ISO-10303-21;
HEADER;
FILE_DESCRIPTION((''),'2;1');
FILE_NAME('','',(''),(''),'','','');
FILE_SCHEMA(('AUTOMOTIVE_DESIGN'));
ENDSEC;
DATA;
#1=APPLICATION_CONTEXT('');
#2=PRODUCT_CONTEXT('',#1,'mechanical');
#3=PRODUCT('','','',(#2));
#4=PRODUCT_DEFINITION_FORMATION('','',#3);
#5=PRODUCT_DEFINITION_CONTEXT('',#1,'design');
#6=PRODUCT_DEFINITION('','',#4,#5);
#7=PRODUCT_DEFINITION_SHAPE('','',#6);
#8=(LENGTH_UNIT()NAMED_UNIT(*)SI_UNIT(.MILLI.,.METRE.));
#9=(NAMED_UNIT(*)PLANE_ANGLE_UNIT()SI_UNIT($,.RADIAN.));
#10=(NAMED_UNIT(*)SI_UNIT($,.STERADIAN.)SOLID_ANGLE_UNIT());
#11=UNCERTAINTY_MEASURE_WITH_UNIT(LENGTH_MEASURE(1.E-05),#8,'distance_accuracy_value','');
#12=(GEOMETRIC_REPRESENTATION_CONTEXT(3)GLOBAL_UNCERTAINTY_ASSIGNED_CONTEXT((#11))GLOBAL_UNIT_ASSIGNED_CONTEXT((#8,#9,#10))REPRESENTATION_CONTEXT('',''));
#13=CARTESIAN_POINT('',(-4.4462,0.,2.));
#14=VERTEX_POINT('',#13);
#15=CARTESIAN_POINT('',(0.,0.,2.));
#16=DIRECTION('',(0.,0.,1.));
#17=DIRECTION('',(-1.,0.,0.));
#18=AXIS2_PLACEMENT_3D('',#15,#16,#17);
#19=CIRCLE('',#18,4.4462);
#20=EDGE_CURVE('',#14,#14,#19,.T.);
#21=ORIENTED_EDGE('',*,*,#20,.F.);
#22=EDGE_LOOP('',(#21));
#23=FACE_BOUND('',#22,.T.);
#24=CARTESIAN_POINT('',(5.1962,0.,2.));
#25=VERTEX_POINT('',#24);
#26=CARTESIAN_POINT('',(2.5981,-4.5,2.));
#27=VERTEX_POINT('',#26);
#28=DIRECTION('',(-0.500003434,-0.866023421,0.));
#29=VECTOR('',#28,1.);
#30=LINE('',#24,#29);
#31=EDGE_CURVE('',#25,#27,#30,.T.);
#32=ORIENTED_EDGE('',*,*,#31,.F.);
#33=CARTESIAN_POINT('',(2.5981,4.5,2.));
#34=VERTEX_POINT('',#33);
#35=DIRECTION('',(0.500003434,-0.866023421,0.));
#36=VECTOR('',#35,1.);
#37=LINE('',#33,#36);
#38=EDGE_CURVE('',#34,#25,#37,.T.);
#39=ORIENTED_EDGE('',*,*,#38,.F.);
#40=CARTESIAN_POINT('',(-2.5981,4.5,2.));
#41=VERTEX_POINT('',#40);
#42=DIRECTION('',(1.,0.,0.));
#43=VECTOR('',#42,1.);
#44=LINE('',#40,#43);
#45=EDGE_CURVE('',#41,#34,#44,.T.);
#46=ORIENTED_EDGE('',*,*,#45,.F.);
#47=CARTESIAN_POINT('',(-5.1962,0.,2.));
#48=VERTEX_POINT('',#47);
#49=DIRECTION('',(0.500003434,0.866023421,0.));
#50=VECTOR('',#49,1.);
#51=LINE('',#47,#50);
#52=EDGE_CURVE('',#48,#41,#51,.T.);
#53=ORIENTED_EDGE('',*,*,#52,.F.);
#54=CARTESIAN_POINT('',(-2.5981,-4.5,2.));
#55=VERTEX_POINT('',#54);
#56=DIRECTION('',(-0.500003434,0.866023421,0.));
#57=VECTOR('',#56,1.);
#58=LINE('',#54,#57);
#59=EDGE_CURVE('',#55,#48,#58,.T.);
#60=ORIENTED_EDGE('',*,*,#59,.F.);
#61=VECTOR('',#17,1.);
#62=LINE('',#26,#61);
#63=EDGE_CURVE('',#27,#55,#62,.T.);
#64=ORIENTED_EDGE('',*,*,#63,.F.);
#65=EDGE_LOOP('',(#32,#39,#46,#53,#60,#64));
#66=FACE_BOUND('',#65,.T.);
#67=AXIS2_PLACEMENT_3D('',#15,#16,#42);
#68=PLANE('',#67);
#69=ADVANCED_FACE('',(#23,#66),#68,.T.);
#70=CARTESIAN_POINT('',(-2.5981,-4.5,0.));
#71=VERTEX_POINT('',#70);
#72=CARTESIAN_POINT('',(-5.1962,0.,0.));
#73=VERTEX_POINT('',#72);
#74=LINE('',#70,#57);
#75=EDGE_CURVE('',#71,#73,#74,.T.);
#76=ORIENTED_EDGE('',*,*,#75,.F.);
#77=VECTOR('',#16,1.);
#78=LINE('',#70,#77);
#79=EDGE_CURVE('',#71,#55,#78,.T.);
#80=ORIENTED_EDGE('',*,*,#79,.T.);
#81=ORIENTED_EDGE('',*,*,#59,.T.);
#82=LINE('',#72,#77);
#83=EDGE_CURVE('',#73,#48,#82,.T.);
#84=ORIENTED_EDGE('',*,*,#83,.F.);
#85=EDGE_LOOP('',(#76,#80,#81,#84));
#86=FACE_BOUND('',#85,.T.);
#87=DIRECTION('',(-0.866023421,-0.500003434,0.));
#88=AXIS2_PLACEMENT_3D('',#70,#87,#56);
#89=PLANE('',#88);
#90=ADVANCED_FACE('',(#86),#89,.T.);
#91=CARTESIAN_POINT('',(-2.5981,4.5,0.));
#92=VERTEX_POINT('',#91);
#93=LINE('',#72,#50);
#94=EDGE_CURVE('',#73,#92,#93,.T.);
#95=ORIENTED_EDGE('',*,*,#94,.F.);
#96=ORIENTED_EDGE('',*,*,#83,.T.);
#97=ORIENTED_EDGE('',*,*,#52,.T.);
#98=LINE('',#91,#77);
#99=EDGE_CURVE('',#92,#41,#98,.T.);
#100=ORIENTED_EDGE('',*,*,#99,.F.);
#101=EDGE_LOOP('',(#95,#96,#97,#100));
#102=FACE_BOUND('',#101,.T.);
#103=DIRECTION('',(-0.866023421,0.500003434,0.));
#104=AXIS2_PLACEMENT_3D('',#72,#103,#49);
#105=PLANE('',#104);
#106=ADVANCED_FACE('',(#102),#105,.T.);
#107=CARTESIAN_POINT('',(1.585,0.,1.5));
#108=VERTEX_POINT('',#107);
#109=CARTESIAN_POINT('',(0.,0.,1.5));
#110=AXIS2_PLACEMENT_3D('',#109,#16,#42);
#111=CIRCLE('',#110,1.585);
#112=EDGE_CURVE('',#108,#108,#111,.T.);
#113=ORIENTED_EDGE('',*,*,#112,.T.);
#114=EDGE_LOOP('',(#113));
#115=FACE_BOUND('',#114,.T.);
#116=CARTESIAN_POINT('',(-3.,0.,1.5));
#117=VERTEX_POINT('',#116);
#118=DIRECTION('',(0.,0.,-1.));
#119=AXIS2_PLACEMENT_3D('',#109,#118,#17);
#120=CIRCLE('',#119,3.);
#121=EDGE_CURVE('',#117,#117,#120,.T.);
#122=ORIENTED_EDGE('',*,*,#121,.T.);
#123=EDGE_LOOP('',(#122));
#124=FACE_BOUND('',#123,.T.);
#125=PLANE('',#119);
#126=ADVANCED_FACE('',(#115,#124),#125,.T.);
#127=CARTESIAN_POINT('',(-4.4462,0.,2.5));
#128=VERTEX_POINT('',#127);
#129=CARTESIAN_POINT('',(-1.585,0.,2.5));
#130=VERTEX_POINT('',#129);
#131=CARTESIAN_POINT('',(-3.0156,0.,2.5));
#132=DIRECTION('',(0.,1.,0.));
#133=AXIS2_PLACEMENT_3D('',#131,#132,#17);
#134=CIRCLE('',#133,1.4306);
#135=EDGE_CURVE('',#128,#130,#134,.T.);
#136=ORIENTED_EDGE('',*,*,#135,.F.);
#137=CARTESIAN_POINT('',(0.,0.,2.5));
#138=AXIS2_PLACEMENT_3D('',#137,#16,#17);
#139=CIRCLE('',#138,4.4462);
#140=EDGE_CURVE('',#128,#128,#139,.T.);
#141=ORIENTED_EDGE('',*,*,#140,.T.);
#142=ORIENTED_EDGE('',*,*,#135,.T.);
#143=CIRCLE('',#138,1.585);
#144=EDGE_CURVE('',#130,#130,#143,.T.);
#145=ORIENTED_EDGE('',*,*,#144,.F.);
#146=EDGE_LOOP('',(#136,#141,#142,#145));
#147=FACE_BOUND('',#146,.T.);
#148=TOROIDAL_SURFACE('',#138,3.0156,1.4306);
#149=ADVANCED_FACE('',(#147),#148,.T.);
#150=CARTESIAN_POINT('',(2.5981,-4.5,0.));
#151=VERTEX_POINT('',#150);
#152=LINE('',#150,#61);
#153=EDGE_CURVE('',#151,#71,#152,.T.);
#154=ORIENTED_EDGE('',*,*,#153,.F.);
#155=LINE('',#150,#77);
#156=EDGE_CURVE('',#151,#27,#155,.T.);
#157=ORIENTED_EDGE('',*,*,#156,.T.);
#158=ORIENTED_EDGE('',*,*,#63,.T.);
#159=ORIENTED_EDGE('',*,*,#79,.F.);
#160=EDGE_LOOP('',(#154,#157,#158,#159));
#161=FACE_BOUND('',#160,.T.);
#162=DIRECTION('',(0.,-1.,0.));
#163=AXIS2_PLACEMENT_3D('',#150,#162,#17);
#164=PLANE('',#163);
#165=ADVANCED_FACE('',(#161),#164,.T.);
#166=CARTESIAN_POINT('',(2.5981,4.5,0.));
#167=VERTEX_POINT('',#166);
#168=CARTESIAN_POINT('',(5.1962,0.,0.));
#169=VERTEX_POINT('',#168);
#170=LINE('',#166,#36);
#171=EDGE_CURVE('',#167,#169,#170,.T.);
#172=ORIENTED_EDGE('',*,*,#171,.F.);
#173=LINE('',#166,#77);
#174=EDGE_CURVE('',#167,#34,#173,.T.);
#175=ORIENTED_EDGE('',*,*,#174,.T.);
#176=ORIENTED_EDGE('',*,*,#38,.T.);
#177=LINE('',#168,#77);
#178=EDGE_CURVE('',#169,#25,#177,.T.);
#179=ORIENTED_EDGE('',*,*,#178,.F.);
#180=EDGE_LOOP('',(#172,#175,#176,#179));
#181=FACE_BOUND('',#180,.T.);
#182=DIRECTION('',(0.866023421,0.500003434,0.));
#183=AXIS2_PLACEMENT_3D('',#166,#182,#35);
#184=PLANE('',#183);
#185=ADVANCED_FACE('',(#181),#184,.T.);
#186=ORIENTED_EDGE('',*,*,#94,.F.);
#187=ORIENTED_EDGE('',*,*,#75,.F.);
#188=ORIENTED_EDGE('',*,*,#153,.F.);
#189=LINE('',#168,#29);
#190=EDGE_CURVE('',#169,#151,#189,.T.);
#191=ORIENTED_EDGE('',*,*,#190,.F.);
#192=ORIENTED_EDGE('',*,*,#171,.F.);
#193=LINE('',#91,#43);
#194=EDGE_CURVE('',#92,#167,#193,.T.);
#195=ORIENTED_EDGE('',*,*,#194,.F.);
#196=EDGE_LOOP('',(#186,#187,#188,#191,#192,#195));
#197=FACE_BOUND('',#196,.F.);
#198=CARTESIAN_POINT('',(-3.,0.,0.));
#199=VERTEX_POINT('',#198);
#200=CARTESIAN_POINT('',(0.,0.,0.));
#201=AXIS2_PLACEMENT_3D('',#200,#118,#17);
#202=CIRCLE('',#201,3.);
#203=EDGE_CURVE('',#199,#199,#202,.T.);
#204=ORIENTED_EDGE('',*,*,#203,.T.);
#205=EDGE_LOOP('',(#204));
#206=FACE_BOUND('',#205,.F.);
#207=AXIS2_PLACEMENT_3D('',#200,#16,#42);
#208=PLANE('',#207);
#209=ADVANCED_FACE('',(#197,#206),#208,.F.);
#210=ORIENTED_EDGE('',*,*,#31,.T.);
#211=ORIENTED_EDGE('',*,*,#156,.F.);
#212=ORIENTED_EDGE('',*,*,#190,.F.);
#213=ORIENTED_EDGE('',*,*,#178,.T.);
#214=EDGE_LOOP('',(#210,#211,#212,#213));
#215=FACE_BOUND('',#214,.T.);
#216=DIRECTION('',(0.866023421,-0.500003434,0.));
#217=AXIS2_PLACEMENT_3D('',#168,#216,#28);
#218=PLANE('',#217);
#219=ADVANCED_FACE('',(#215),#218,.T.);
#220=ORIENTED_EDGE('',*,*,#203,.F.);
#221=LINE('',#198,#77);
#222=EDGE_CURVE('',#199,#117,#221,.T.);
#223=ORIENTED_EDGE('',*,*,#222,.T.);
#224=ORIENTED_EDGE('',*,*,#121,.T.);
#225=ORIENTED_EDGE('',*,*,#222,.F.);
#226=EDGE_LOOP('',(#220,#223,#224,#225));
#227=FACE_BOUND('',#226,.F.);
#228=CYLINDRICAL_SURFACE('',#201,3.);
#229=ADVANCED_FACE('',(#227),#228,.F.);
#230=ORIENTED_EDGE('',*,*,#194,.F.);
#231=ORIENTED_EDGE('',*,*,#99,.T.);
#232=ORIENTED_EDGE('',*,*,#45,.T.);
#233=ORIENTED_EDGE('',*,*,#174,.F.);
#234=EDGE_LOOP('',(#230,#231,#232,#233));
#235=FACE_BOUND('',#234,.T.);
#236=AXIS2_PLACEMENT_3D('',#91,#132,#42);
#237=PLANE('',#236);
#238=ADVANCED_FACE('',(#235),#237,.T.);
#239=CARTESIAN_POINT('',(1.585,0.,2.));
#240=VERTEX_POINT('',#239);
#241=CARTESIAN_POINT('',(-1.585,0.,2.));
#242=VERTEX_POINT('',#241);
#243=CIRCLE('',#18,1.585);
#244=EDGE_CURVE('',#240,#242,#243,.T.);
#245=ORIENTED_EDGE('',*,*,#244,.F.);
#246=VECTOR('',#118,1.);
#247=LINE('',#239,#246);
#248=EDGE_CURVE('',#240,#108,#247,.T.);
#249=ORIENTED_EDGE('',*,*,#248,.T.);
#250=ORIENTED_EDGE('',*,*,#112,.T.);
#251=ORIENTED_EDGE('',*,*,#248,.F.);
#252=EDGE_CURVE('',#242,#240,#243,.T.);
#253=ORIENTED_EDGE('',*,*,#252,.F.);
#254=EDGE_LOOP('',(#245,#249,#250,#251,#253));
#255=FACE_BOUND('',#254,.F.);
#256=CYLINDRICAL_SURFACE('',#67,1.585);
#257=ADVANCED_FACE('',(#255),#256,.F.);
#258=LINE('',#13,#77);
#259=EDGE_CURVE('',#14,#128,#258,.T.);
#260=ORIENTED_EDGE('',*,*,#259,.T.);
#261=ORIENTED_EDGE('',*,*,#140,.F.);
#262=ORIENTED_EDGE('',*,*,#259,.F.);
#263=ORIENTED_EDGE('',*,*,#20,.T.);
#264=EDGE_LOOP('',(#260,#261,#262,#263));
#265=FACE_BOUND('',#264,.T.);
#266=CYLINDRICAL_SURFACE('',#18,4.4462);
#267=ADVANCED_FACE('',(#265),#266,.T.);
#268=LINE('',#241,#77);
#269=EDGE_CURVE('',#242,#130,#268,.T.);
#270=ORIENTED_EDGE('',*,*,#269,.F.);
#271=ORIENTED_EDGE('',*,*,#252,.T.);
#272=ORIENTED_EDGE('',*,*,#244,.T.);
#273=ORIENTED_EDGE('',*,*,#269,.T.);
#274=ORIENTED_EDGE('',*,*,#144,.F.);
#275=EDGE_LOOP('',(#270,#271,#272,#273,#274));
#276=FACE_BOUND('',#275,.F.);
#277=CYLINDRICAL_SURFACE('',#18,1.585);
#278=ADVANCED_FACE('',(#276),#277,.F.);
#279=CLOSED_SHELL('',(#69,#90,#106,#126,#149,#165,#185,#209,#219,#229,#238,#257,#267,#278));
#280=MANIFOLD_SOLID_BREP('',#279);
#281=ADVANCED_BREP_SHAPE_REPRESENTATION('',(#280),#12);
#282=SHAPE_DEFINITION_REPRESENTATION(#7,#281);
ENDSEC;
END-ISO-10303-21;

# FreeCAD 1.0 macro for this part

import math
import FreeCAD as App
import Part
import Sketcher

V = App.Vector
Q = App.Units.Quantity


def add_polygon(sketch, points):
    """Adds a closed chain of lines whose ends are joined by coincident constraints."""
    first, n = sketch.GeometryCount, len(points)
    for a, b in zip(points, points[1:] + points[:1]):
        sketch.addGeometry(Part.LineSegment(App.Vector(*a, 0), App.Vector(*b, 0)), False)
    for i in range(n):
        sketch.addConstraint(Sketcher.Constraint("Coincident", first + i, 2, first + (i + 1) % n, 1))

doc = App.newDocument("Part")
body = doc.addObject("PartDesign::Body", "Body")

# Sketch on XY plane
sketch1 = doc.addObject("Sketcher::SketchObject", "Sketch")
body.addObject(sketch1)
sketch1.AttachmentSupport = (doc.XY_Plane, [""])
sketch1.MapMode = "FlatFace"
add_polygon(sketch1, [(-3, 4), (-5, 0), (-3, -4), (3, -4), (5, 0), (3, 4)])  # lines 0-5
sketch1.addConstraint(Sketcher.Constraint("Horizontal", 2))
sketch1.addConstraint(Sketcher.Constraint("Horizontal", 5))
sketch1.addConstraint(Sketcher.Constraint("Symmetric", 0, 2, 3, 2, -1, 1))
sketch1.addConstraint(Sketcher.Constraint("Symmetric", 1, 2, 4, 2, -1, 1))
sketch1.addConstraint(Sketcher.Constraint("PointOnObject", 0, 2, -1))
sketch1.addConstraint(Sketcher.Constraint("Parallel", 0, 3))
sketch1.addConstraint(Sketcher.Constraint("Vertical", 2, 2, 4, 2))
sketch1.addConstraint(Sketcher.Constraint("DistanceY", 2, 2, 4, 2, 9.0))
sketch1.addConstraint(Sketcher.Constraint("Angle", 0, Q("-120.0002 deg")))
sketch1.addConstraint(Sketcher.Constraint("DistanceX", 2, 1, 2, 2, 5.1962))
pad1 = doc.addObject("PartDesign::Pad", "Pad")
body.addObject(pad1)
pad1.Profile = sketch1
pad1.Length = 2

# Sketch on XZ plane
sketch2 = doc.addObject("Sketcher::SketchObject", "Sketch001")
body.addObject(sketch2)
sketch2.AttachmentSupport = (doc.XZ_Plane, [""])
sketch2.MapMode = "FlatFace"
sketch2.addGeometry(Part.LineSegment(V(-1.6, 2, 0), V(-4.4, 2, 0)), False)
sketch2.addGeometry(Part.LineSegment(V(-4.4, 2, 0), V(-4.4, 2.5, 0)), False)
sketch2.addGeometry(Part.ArcOfCircle(Part.Circle(V(-3, 2.5, 0), V(0, 0, 1), 1.4), math.radians(0), math.radians(180)), False)
sketch2.addGeometry(Part.LineSegment(V(-1.6, 2.5, 0), V(-1.6, 2, 0)), False)
sketch2.addConstraint(Sketcher.Constraint("Coincident", 0, 2, 1, 1))
sketch2.addConstraint(Sketcher.Constraint("Tangent", 1, 2, 2, 2))
sketch2.addConstraint(Sketcher.Constraint("Tangent", 2, 1, 3, 1))
sketch2.addConstraint(Sketcher.Constraint("Coincident", 3, 2, 0, 1))
sketch2.addConstraint(Sketcher.Constraint("Horizontal", 0))
sketch2.addConstraint(Sketcher.Constraint("Vertical", 1))
sketch2.addConstraint(Sketcher.Constraint("Vertical", 3))
sketch2.addConstraint(Sketcher.Constraint("DistanceY", 1, 1, 1, 2, 0.5))
sketch2.addConstraint(Sketcher.Constraint("DistanceX", 2, 1, -1, 1, 1.585))
sketch2.addConstraint(Sketcher.Constraint("DistanceY", -1, 1, 0, 2, 2.0))
sketch2.addConstraint(Sketcher.Constraint("Radius", 2, 1.4306))
revolution = doc.addObject("PartDesign::Revolution", "Revolution")
body.addObject(revolution)
revolution.Profile = sketch2
revolution.ReferenceAxis = (sketch2, ["V_Axis"])
revolution.Angle = 360

# Sketch on XY plane
sketch3 = doc.addObject("Sketcher::SketchObject", "Sketch002")
body.addObject(sketch3)
sketch3.AttachmentSupport = (doc.XY_Plane, [""])
sketch3.MapMode = "FlatFace"
sketch3.AttachmentOffset = App.Placement(V(0, 0, 2), App.Rotation())
sketch3.addGeometry(Part.Circle(V(0, 0, 0), V(0, 0, 1), 1.6), False)
sketch3.addConstraint(Sketcher.Constraint("Coincident", 0, 3, -1, 1))
sketch3.addConstraint(Sketcher.Constraint("Diameter", 0, 3.17))
pocket1 = doc.addObject("PartDesign::Pocket", "Pocket")
body.addObject(pocket1)
pocket1.Profile = sketch3
pocket1.Type = "ThroughAll"

# Sketch on XY plane
sketch4 = doc.addObject("Sketcher::SketchObject", "Sketch003")
body.addObject(sketch4)
sketch4.AttachmentSupport = (doc.XY_Plane, [""])
sketch4.MapMode = "FlatFace"
sketch4.addGeometry(Part.Circle(V(0, 0, 0), V(0, 0, 1), 3), False)
sketch4.addConstraint(Sketcher.Constraint("Coincident", 0, 3, -1, 1))
sketch4.addConstraint(Sketcher.Constraint("Diameter", 0, 6.0))
pocket2 = doc.addObject("PartDesign::Pocket", "Pocket001")
body.addObject(pocket2)
pocket2.Profile = sketch4
pocket2.Length = 1.5
pocket2.Reversed = True

doc.recompute()
